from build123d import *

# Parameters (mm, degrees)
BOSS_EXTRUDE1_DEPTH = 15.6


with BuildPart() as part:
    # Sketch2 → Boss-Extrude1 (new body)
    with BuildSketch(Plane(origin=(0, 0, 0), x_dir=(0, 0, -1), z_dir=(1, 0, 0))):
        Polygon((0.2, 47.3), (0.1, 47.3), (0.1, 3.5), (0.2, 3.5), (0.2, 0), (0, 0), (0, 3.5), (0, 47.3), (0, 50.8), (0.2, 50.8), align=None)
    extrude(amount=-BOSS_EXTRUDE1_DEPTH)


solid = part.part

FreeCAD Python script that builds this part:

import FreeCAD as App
import Part
import Sketcher

V = App.Vector
Q = App.Units.Quantity

doc = App.newDocument("Part")
params = doc.addObject("Spreadsheet::Sheet", "Params")
for row, (alias, value) in enumerate([
    ("sketch1_width", "3.5 mm"),
    ("sketch1_width2", "50.8 mm"),
    ("sketch1_height", "0.1 mm"),
    ("sketch1_height2", "0.2 mm"),
    ("pad1_length", "15.6 mm"),
], start=1):
    params.set(f"A{row}", alias)
    params.set(f"B{row}", "=" + value)
    params.setAlias(f"B{row}", alias)

body = doc.addObject("PartDesign::Body", "Body")

# Sketch on YZ plane
sketch1 = doc.addObject("Sketcher::SketchObject", "Sketch")
body.addObject(sketch1)
sketch1.AttachmentSupport = (doc.YZ_Plane, [""])
sketch1.MapMode = "FlatFace"
sketch1.addGeometry(Part.LineSegment(V(47.3, -0.1, 0), V(47.3, -0.2, 0)), False)
sketch1.addGeometry(Part.LineSegment(V(47.3, -0.2, 0), V(50.8, -0.2, 0)), False)
sketch1.addGeometry(Part.LineSegment(V(50.8, -0.2, 0), V(50.8, 0, 0)), False)
sketch1.addGeometry(Part.LineSegment(V(50.8, 0, 0), V(0, 0, 0)), False)
sketch1.addGeometry(Part.LineSegment(V(0, 0, 0), V(0, -0.2, 0)), False)
sketch1.addGeometry(Part.LineSegment(V(0, -0.2, 0), V(3.5, -0.2, 0)), False)
sketch1.addGeometry(Part.LineSegment(V(3.5, -0.2, 0), V(3.5, -0.1, 0)), False)
sketch1.addGeometry(Part.LineSegment(V(3.5, -0.1, 0), V(47.3, -0.1, 0)), False)
sketch1.addConstraint(Sketcher.Constraint("Coincident", 0, 2, 1, 1))
sketch1.addConstraint(Sketcher.Constraint("Coincident", 1, 2, 2, 1))
sketch1.addConstraint(Sketcher.Constraint("Coincident", 2, 2, 3, 1))
sketch1.addConstraint(Sketcher.Constraint("Coincident", 3, 2, 4, 1))
sketch1.addConstraint(Sketcher.Constraint("Coincident", 4, 2, 5, 1))
sketch1.addConstraint(Sketcher.Constraint("Coincident", 5, 2, 6, 1))
sketch1.addConstraint(Sketcher.Constraint("Coincident", 6, 2, 7, 1))
sketch1.addConstraint(Sketcher.Constraint("Coincident", 7, 2, 0, 1))
sketch1.addConstraint(Sketcher.Constraint("Vertical", 0))
sketch1.addConstraint(Sketcher.Constraint("Horizontal", 1))
sketch1.addConstraint(Sketcher.Constraint("Vertical", 2))
sketch1.addConstraint(Sketcher.Constraint("Horizontal", 3))
sketch1.addConstraint(Sketcher.Constraint("Vertical", 4))
sketch1.addConstraint(Sketcher.Constraint("Horizontal", 5))
sketch1.addConstraint(Sketcher.Constraint("Vertical", 6))
sketch1.addConstraint(Sketcher.Constraint("Horizontal", 7))
sketch1.addConstraint(Sketcher.Constraint("Coincident", 3, 2, -1, 1))
sketch1.addConstraint(Sketcher.Constraint("Horizontal", 1, 2, 4, 2))
sketch1.addConstraint(Sketcher.Constraint("Equal", 1, 5))
sketch1.addConstraint(Sketcher.Constraint("DistanceX", 1, 1, 1, 2, Q("3.5 mm")))
sketch1.addConstraint(Sketcher.Constraint("DistanceX", 3, 2, 3, 1, Q("50.8 mm")))
sketch1.addConstraint(Sketcher.Constraint("DistanceY", 0, 2, 0, 1, Q("0.1 mm")))
sketch1.addConstraint(Sketcher.Constraint("DistanceY", 2, 1, 2, 2, Q("0.2 mm")))
sketch1.setExpression("Constraints[19]", "Params.sketch1_width")
sketch1.setExpression("Constraints[20]", "Params.sketch1_width2")
sketch1.setExpression("Constraints[21]", "Params.sketch1_height")
sketch1.setExpression("Constraints[22]", "Params.sketch1_height2")
pad1 = doc.addObject("PartDesign::Pad", "Pad")
body.addObject(pad1)
pad1.Profile = sketch1
pad1.setExpression("Length", "Params.pad1_length")
pad1.Reversed = True

doc.recompute()
